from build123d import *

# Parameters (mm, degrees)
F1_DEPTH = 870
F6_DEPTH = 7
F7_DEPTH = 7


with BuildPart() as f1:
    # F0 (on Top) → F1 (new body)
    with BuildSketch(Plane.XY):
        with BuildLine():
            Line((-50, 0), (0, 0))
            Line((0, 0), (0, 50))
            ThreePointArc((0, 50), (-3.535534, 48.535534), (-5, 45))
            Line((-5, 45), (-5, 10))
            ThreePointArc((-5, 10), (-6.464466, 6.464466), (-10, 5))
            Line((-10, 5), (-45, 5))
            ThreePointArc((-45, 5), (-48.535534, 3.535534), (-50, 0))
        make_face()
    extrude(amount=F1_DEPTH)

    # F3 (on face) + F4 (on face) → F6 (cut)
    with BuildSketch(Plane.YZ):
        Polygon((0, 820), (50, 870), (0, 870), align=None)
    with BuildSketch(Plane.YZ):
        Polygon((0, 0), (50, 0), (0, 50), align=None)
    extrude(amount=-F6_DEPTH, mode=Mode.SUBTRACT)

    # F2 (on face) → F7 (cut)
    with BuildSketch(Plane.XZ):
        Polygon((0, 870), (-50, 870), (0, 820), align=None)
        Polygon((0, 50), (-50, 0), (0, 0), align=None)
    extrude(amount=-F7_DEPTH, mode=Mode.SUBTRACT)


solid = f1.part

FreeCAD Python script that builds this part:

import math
import FreeCAD as App
import Part
import Sketcher
from FreeCAD import Vector
Q = App.Units.Quantity

doc = App.newDocument("Part")
params = doc.addObject("Spreadsheet::Sheet", "Params")
for row, (alias, value) in enumerate([
    ("sketch1_radius", "5 mm"),
    ("sketch1_width", "50 mm"),
    ("pad1_length", "870 mm"),
    ("sketch2_width", "50 mm"),
    ("pocket1_length", "7 mm"),
    ("sketch3_width", "50 mm"),
    ("pocket2_length", "7 mm"),
], start=1):
    params.set(f"A{row}", alias)
    params.set(f"B{row}", "=" + value)
    params.setAlias(f"B{row}", alias)

body = doc.addObject("PartDesign::Body", "Body")

sketch1 = body.newObject("Sketcher::SketchObject", "Sketch")
sketch1.AttachmentSupport = (doc.getObject("XY_Plane"), [""])
sketch1.MapMode = "FlatFace"
sketch1.addGeometry([
    Part.LineSegment(Vector(-50, 0, 0), Vector(0, 0, 0)),
    Part.LineSegment(Vector(0, 0, 0), Vector(0, 50, 0)),
    Part.ArcOfCircle(Part.Circle(Vector(0, 45, 0), Vector(0, 0, 1), 5), math.radians(89.999996), math.radians(180.000004)),
    Part.LineSegment(Vector(-5, 45, 0), Vector(-5, 10, 0)),
    Part.ArcOfCircle(Part.Circle(Vector(-10, 10, 0), Vector(0, 0, 1), 5), math.radians(-90.000004), math.radians(0.000004)),
    Part.LineSegment(Vector(-10, 5, 0), Vector(-45, 5, 0)),
    Part.ArcOfCircle(Part.Circle(Vector(-45, 0, 0), Vector(0, 0, 1), 5), math.radians(89.999996), math.radians(180.000004)),
], False)
sketch1.addConstraint([
    Sketcher.Constraint("Coincident", 0, 2, 1, 1),
    Sketcher.Constraint("Coincident", 1, 2, 2, 1),
    Sketcher.Constraint("Tangent", 2, 2, 3, 1),
    Sketcher.Constraint("Tangent", 3, 2, 4, 2),
    Sketcher.Constraint("Tangent", 4, 1, 5, 1),
    Sketcher.Constraint("Tangent", 5, 2, 6, 1),
    Sketcher.Constraint("Coincident", 6, 2, 0, 1),
    Sketcher.Constraint("Horizontal", 0),
    Sketcher.Constraint("Vertical", 1),
    Sketcher.Constraint("Vertical", 3),
    Sketcher.Constraint("Horizontal", 5),
    Sketcher.Constraint("Coincident", 0, 2, -1, 1),
    Sketcher.Constraint("Equal", 2, 4),
    Sketcher.Constraint("Equal", 4, 6),
    Sketcher.Constraint("PointOnObject", 2, 3, -2),
    Sketcher.Constraint("PointOnObject", 6, 3, -1),
    Sketcher.Constraint("Equal", 0, 1),
    Sketcher.Constraint("Radius", 2, Q("5 mm")),
    Sketcher.Constraint("DistanceX", 0, 1, 0, 2, Q("50 mm")),
])
sketch1.setExpression("Constraints[17]", "Params.sketch1_radius")
sketch1.setExpression("Constraints[18]", "Params.sketch1_width")
pad1 = body.newObject("PartDesign::Pad", "Pad")
pad1.Profile = sketch1
pad1.setExpression("Length", "Params.pad1_length")

sketch2 = body.newObject("Sketcher::SketchObject", "Sketch001")
sketch2.AttachmentSupport = (doc.getObject("YZ_Plane"), [""])
sketch2.MapMode = "FlatFace"
sketch2.addGeometry([
    Part.LineSegment(Vector(0, 820, 0), Vector(50, 870, 0)),
    Part.LineSegment(Vector(50, 870, 0), Vector(0, 870, 0)),
    Part.LineSegment(Vector(0, 870, 0), Vector(0, 820, 0)),
    Part.LineSegment(Vector(0, 0, 0), Vector(50, 0, 0)),
    Part.LineSegment(Vector(50, 0, 0), Vector(0, 50, 0)),
    Part.LineSegment(Vector(0, 50, 0), Vector(0, 0, 0)),
], False)
sketch2.addConstraint([
    Sketcher.Constraint("Coincident", 0, 2, 1, 1),
    Sketcher.Constraint("Coincident", 1, 2, 2, 1),
    Sketcher.Constraint("Coincident", 2, 2, 0, 1),
    Sketcher.Constraint("Coincident", 3, 2, 4, 1),
    Sketcher.Constraint("Coincident", 4, 2, 5, 1),
    Sketcher.Constraint("Coincident", 5, 2, 3, 1),
    Sketcher.Constraint("Horizontal", 1),
    Sketcher.Constraint("Vertical", 2),
    Sketcher.Constraint("Horizontal", 3),
    Sketcher.Constraint("Vertical", 5),
    Sketcher.Constraint("Coincident", 5, 2, -1, 1),
    Sketcher.Constraint("PointOnObject", 1, 2, -2),
    Sketcher.Constraint("Perpendicular", 0, 4),
    Sketcher.Constraint("Vertical", 0, 2, 3, 2),
    Sketcher.Constraint("Equal", 3, 2),
    Sketcher.Constraint("DistanceX", 1, 2, 1, 1, Q("50 mm")),
    Sketcher.Constraint("DistanceY", -1, 1, 0, 2, Q("870 mm")),
])
sketch2.setExpression("Constraints[15]", "Params.sketch2_width")
pocket1 = body.newObject("PartDesign::Pocket", "Pocket")
pocket1.Profile = sketch2
pocket1.setExpression("Length", "Params.pocket1_length")

sketch3 = body.newObject("Sketcher::SketchObject", "Sketch002")
sketch3.AttachmentSupport = (doc.getObject("XZ_Plane"), [""])
sketch3.MapMode = "FlatFace"
sketch3.addGeometry([
    Part.LineSegment(Vector(0, 870, 0), Vector(-50, 870, 0)),
    Part.LineSegment(Vector(-50, 870, 0), Vector(0, 820, 0)),
    Part.LineSegment(Vector(0, 820, 0), Vector(0, 870, 0)),
    Part.LineSegment(Vector(0, 50, 0), Vector(-50, 0, 0)),
    Part.LineSegment(Vector(-50, 0, 0), Vector(0, 0, 0)),
    Part.LineSegment(Vector(0, 0, 0), Vector(0, 50, 0)),
], False)
sketch3.addConstraint([
    Sketcher.Constraint("Coincident", 0, 2, 1, 1),
    Sketcher.Constraint("Coincident", 1, 2, 2, 1),
    Sketcher.Constraint("Coincident", 2, 2, 0, 1),
    Sketcher.Constraint("Coincident", 3, 2, 4, 1),
    Sketcher.Constraint("Coincident", 4, 2, 5, 1),
    Sketcher.Constraint("Coincident", 5, 2, 3, 1),
    Sketcher.Constraint("Horizontal", 0),
    Sketcher.Constraint("Vertical", 2),
    Sketcher.Constraint("Horizontal", 4),
    Sketcher.Constraint("Vertical", 5),
    Sketcher.Constraint("Coincident", 4, 2, -1, 1),
    Sketcher.Constraint("PointOnObject", 1, 2, -2),
    Sketcher.Constraint("Perpendicular", 1, 3),
    Sketcher.Constraint("Vertical", 0, 2, 3, 2),
    Sketcher.Constraint("Equal", 4, 2),
    Sketcher.Constraint("DistanceX", 0, 2, 0, 1, Q("50 mm")),
    Sketcher.Constraint("DistanceY", -1, 1, 0, 2, Q("870 mm")),
])
sketch3.setExpression("Constraints[15]", "Params.sketch3_width")
pocket2 = body.newObject("PartDesign::Pocket", "Pocket001")
pocket2.Profile = sketch3
pocket2.setExpression("Length", "Params.pocket2_length")

doc.recompute()
